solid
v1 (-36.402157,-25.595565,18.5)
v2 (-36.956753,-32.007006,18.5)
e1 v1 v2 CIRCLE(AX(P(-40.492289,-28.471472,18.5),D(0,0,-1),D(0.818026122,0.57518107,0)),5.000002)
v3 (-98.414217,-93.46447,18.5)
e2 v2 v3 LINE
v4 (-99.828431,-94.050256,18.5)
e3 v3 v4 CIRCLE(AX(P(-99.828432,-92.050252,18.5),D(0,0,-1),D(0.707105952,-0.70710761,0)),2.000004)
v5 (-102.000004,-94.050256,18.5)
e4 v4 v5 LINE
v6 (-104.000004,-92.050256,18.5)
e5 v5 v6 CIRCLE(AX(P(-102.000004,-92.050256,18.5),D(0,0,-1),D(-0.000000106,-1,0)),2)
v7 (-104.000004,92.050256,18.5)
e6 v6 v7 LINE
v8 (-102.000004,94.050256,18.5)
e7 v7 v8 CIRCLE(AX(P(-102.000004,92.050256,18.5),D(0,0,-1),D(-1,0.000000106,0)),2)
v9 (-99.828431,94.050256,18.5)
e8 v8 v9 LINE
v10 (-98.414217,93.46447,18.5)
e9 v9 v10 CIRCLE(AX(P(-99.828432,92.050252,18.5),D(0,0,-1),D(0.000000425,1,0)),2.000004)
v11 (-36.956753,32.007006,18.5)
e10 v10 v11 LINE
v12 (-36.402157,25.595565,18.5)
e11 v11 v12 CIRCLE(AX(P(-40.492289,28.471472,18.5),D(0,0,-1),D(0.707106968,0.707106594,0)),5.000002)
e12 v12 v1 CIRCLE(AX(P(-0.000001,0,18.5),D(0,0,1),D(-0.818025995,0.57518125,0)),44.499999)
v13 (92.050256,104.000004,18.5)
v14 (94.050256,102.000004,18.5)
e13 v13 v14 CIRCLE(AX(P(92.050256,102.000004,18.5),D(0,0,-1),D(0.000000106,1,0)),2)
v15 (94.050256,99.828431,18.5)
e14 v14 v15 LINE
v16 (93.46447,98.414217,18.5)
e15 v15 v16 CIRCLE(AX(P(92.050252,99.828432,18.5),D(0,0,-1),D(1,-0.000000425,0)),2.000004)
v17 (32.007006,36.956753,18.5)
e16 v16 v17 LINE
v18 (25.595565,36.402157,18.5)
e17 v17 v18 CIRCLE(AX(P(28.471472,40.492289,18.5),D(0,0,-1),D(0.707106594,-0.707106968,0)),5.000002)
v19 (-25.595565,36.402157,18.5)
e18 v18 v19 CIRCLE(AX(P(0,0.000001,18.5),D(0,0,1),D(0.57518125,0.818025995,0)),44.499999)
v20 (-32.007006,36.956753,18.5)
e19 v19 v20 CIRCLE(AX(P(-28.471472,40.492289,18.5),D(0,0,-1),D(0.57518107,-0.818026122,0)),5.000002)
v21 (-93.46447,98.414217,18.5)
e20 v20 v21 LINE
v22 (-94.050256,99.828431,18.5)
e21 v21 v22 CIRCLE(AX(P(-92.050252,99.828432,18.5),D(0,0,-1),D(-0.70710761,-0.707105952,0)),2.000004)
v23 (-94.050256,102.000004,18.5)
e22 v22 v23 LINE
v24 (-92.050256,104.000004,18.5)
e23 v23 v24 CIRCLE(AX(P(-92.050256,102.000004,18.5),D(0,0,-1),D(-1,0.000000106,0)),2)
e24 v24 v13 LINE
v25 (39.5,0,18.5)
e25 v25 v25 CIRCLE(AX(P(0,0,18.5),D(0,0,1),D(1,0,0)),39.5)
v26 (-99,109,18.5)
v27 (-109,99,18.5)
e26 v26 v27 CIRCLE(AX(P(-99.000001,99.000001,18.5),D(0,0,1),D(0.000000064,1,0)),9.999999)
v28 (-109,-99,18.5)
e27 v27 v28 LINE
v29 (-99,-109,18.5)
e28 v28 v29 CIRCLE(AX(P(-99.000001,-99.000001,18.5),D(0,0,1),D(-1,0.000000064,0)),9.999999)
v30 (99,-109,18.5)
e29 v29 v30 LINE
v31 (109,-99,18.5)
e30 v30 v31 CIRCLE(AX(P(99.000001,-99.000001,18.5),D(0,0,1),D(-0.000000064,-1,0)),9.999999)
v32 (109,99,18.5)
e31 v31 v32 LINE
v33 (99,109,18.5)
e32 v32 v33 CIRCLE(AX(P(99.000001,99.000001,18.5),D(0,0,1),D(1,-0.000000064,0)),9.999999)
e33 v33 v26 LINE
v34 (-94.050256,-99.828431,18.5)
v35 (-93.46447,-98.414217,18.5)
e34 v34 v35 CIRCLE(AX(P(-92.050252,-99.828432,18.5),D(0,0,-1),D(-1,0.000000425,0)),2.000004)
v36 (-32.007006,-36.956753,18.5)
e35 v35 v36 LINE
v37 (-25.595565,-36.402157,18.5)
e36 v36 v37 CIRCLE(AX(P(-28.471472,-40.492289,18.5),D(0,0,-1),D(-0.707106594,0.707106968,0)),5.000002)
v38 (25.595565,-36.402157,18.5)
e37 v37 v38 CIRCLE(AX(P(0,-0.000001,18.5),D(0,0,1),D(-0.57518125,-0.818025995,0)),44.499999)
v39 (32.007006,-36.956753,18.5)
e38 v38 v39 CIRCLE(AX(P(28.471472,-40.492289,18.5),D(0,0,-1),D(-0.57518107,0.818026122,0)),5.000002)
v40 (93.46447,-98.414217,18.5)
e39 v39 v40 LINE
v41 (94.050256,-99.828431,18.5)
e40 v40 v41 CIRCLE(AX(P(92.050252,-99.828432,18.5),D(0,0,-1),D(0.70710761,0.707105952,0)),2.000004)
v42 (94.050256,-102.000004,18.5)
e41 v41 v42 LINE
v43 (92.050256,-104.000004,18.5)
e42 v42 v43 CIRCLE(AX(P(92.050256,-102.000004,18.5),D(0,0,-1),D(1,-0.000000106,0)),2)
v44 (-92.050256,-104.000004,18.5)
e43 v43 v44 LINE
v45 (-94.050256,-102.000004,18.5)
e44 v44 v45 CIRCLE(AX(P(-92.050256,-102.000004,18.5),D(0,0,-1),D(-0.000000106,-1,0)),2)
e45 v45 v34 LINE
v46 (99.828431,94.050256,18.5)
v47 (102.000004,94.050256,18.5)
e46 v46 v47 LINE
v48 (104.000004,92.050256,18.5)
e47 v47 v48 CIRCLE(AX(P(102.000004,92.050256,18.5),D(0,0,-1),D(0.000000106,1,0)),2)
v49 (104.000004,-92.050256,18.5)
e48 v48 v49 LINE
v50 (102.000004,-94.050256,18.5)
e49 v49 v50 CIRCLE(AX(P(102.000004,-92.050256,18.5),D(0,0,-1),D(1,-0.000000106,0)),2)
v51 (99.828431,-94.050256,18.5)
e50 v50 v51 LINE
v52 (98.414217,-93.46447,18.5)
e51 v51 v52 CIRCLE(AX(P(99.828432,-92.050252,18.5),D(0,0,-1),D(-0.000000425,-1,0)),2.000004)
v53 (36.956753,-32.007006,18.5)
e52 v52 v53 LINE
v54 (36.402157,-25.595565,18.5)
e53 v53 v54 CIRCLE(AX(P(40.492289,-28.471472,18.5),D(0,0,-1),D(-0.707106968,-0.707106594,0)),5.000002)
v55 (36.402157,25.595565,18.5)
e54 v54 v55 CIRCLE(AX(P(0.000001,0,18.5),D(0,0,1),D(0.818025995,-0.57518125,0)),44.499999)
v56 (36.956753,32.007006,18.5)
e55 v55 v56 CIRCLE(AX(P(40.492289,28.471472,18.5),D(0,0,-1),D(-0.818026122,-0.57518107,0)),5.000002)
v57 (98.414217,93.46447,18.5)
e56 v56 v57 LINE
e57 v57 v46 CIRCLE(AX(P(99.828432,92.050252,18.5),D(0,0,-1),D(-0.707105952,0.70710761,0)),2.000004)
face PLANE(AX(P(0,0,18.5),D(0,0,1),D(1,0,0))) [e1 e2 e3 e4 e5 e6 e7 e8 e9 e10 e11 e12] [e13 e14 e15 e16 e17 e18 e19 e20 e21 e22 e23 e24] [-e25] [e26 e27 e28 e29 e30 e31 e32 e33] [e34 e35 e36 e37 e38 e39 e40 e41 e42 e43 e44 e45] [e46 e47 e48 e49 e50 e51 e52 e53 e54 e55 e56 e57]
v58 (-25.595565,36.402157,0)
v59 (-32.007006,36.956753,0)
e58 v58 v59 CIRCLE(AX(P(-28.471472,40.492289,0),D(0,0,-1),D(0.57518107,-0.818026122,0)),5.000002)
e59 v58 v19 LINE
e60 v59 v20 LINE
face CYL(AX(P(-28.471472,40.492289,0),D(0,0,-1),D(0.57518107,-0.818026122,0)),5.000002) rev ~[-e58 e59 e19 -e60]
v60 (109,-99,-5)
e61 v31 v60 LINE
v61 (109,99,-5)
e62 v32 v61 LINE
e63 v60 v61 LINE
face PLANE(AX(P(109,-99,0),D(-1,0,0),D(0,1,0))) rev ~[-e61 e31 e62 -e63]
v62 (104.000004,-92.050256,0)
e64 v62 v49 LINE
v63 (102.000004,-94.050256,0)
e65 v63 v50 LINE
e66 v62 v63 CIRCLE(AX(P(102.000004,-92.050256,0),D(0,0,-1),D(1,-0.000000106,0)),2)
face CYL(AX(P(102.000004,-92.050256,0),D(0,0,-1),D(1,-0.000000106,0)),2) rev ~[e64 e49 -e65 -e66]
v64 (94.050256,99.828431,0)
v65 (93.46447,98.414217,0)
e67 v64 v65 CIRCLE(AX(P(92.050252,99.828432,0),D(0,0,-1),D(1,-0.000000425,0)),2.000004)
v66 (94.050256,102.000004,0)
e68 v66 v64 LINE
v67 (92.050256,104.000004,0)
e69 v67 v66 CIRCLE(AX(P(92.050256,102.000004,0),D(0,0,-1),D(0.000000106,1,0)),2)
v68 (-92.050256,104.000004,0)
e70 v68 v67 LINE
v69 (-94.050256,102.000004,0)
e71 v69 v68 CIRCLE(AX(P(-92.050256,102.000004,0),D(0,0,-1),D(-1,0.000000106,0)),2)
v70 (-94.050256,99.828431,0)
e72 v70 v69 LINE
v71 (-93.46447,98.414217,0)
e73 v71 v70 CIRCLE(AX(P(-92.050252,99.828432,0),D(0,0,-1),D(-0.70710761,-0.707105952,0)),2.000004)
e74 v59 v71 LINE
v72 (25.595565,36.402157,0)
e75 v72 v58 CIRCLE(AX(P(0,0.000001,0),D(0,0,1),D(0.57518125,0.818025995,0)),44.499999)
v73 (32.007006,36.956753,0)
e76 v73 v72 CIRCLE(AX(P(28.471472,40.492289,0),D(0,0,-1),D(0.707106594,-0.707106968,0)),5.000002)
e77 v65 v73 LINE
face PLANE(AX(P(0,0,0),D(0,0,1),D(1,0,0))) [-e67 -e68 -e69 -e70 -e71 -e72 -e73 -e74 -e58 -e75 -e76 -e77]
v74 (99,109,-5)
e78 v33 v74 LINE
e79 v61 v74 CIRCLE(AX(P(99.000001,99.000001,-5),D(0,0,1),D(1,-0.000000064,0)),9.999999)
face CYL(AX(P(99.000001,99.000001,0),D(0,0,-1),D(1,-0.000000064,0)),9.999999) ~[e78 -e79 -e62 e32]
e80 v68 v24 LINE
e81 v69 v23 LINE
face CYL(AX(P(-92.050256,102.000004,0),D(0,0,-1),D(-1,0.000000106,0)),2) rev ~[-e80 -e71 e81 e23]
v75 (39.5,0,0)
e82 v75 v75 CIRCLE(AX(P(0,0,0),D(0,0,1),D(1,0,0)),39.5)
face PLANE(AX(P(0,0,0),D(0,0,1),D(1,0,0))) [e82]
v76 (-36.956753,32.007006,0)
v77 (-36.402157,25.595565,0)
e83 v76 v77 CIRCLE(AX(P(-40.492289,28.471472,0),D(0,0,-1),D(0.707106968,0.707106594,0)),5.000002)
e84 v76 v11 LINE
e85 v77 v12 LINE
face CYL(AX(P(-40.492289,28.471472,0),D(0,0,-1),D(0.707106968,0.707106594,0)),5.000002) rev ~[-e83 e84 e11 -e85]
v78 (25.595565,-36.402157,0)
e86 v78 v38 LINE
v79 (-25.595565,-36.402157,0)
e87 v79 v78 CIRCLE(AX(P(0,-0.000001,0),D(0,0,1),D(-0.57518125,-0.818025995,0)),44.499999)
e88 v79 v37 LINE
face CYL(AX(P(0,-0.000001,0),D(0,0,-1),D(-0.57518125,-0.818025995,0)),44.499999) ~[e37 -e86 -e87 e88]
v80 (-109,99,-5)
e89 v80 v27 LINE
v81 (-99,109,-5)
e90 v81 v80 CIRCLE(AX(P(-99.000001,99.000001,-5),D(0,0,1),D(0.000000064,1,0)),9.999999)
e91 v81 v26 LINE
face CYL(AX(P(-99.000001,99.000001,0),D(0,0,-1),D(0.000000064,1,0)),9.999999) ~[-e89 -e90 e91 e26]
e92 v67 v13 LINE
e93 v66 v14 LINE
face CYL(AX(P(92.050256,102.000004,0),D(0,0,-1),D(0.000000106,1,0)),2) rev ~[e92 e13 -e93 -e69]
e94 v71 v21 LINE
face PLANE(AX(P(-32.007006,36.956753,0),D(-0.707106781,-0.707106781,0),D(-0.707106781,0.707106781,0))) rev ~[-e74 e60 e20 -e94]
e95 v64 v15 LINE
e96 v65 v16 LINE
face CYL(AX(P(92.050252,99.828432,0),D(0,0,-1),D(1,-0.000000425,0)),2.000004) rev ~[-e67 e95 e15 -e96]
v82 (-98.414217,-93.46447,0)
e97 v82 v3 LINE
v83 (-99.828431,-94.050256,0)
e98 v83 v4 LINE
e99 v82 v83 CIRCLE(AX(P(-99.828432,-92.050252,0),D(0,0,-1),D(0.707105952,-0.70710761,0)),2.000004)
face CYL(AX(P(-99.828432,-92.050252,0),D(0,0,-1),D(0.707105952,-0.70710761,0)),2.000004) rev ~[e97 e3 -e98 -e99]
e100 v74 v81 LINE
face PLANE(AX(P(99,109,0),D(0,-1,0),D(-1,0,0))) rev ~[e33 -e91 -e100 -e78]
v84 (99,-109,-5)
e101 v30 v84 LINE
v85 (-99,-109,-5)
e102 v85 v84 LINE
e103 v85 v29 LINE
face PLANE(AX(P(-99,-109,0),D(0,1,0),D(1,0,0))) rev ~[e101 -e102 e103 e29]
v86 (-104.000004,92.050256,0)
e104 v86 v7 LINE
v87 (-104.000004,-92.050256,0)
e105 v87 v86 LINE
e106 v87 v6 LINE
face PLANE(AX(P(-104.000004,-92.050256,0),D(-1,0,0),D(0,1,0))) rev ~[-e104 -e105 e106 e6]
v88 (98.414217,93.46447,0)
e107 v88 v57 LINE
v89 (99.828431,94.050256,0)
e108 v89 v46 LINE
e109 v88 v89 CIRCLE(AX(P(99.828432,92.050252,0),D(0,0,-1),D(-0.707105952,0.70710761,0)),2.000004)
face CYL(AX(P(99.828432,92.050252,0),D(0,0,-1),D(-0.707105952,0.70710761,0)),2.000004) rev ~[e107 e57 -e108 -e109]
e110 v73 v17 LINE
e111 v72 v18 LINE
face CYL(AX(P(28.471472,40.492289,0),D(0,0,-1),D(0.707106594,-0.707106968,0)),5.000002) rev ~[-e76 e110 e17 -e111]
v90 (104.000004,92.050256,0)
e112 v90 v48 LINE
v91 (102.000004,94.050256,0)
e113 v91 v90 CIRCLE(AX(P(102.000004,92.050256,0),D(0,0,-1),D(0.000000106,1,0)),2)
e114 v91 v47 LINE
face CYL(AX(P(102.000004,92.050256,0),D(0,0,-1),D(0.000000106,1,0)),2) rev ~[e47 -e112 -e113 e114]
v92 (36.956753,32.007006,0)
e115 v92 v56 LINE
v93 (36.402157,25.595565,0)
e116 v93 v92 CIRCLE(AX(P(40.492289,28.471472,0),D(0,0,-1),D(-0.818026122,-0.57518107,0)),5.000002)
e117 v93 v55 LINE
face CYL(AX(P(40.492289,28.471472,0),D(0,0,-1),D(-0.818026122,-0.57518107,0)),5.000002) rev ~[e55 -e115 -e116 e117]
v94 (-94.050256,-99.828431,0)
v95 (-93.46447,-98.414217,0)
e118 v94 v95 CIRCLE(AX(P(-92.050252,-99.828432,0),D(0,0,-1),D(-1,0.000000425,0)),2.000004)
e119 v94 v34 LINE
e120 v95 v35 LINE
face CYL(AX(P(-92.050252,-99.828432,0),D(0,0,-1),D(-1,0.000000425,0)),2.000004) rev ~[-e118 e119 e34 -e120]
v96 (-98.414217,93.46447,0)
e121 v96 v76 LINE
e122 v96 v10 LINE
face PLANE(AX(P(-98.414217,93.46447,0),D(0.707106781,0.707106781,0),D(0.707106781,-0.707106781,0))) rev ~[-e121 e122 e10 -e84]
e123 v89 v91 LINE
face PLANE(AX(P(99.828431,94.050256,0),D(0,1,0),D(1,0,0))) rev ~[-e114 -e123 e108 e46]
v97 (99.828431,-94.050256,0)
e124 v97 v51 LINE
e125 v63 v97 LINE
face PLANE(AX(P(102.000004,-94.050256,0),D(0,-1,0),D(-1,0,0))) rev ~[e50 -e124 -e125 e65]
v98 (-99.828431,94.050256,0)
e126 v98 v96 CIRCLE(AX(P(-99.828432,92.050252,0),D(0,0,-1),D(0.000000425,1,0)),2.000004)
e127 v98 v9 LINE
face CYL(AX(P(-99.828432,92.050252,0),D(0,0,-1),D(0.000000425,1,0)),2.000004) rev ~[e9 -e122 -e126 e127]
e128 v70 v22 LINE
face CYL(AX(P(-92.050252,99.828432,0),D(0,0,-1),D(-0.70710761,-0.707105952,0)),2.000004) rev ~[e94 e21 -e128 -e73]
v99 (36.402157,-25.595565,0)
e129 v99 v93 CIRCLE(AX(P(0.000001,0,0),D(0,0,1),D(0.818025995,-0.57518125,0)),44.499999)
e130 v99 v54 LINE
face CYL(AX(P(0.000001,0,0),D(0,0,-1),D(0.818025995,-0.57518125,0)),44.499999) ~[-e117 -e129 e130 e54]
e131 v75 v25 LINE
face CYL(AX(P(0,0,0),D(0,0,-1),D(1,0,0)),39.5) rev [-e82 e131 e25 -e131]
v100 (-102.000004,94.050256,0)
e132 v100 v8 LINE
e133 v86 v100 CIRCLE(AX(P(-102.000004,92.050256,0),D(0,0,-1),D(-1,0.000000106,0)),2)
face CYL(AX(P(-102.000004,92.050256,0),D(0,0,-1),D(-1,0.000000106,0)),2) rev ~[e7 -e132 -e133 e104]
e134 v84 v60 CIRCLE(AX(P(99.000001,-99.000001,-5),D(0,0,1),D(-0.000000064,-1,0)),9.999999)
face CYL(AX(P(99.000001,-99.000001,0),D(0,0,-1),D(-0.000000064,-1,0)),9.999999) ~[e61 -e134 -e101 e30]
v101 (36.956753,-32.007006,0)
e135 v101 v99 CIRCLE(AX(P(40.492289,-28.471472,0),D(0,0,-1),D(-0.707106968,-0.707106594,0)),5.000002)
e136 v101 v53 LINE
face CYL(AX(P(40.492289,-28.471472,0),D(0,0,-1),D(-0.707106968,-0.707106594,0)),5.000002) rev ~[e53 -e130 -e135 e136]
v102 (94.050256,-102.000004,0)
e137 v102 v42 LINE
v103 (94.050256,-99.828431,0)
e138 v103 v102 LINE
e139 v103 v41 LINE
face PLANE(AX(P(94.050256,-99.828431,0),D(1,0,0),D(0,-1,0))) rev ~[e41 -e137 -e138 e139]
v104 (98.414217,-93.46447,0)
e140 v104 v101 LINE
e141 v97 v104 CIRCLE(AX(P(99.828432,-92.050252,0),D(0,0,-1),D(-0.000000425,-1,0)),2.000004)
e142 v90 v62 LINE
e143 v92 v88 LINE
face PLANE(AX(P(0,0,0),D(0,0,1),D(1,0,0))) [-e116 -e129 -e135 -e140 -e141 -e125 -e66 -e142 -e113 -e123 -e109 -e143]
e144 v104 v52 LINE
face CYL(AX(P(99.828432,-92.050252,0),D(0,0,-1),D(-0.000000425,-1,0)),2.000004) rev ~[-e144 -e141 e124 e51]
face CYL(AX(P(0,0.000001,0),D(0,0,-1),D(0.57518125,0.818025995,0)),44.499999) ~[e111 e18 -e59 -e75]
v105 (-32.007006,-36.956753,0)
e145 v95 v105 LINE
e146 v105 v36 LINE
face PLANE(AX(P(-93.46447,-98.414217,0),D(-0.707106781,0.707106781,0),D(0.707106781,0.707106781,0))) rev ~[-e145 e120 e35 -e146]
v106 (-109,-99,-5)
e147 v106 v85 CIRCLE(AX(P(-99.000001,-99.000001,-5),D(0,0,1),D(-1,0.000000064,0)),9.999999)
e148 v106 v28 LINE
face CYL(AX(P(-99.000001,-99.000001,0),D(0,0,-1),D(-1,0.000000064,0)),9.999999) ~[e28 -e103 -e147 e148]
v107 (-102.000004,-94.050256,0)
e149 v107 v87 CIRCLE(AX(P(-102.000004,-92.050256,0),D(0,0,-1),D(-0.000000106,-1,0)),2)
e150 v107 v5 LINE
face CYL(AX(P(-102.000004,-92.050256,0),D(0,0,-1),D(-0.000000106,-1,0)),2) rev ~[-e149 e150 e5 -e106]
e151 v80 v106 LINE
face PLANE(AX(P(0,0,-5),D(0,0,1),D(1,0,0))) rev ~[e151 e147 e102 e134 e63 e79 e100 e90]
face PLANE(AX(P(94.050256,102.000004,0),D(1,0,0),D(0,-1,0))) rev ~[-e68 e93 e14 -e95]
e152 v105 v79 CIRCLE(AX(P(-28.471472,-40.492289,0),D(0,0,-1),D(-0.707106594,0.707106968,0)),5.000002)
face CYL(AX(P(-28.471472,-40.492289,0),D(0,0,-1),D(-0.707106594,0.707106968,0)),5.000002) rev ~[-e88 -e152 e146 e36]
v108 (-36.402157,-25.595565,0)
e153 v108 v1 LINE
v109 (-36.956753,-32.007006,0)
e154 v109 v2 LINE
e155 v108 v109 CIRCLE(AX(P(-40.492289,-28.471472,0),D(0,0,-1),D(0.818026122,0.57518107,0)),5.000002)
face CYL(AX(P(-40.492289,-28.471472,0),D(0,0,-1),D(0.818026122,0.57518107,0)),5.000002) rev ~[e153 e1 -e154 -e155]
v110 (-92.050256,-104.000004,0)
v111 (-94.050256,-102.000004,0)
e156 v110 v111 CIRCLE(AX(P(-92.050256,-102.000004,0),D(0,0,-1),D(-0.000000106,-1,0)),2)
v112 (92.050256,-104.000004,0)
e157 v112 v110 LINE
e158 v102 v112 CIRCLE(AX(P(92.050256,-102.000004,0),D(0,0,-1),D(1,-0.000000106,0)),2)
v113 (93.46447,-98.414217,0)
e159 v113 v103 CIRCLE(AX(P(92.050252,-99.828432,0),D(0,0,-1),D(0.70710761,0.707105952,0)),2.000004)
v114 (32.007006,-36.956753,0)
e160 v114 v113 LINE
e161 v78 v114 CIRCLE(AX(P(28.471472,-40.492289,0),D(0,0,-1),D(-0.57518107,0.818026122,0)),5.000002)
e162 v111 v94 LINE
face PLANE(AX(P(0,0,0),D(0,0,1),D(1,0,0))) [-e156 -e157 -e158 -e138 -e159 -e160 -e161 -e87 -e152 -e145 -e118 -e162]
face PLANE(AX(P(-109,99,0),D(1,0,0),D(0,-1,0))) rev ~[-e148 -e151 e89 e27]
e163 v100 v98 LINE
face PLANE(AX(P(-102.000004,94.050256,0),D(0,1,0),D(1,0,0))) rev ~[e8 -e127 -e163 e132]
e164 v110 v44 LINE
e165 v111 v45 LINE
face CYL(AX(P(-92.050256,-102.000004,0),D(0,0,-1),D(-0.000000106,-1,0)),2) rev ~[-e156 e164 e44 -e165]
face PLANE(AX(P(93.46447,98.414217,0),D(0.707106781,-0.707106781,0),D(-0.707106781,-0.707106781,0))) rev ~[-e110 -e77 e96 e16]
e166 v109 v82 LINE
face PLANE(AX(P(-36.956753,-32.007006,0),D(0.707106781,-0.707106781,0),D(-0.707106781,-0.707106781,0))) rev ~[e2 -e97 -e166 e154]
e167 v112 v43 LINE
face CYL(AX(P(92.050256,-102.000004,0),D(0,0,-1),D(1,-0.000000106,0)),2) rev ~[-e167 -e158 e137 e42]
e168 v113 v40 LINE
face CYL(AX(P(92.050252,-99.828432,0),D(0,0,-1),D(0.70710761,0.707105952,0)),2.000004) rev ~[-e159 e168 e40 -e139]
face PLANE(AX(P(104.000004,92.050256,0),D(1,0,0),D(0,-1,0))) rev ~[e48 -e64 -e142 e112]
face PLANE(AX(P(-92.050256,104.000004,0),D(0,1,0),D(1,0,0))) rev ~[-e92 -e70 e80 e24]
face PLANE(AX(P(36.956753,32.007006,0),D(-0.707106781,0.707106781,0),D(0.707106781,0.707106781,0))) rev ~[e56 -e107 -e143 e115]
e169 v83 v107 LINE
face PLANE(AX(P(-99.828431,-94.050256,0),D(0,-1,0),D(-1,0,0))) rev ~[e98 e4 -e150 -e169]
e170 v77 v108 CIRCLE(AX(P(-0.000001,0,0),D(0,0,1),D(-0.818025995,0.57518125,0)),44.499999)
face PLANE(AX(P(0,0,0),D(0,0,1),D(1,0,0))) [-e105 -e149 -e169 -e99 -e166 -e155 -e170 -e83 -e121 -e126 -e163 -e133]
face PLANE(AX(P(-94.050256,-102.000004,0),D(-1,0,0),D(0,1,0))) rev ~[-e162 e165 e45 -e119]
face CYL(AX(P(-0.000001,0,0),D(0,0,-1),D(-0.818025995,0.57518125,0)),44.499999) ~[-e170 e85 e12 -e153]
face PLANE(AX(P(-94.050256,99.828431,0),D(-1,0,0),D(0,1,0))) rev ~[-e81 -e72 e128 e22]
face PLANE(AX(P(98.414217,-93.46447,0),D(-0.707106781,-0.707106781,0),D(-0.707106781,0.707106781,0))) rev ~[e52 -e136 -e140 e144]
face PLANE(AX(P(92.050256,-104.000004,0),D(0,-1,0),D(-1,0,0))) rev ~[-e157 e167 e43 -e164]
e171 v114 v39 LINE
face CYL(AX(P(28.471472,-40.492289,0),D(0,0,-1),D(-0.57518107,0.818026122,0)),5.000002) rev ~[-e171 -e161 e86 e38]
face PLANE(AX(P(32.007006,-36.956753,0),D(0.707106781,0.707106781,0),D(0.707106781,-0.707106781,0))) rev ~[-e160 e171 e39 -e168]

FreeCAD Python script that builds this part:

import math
import FreeCAD as App
import Part
import Sketcher

V = App.Vector
Q = App.Units.Quantity

doc = App.newDocument("Part")
body = doc.addObject("PartDesign::Body", "Body")

sketch1 = body.newObject("Sketcher::SketchObject", "Sketch")
sketch1.AttachmentSupport = (doc.getObject("XY_Plane"), [""])
sketch1.MapMode = "FlatFace"
sketch1.addGeometry(Part.LineSegment(V(99, 109, 0), V(-99, 109, 0)), False)
sketch1.addGeometry(Part.ArcOfCircle(Part.Circle(V(-99, 99, 0), V(0, 0, 1), 10), math.radians(90), math.radians(180)), False)
sketch1.addGeometry(Part.LineSegment(V(-109, 99, 0), V(-109, -99, 0)), False)
sketch1.addGeometry(Part.ArcOfCircle(Part.Circle(V(-99, -99, 0), V(0, 0, 1), 10), math.radians(180), math.radians(270)), False)
sketch1.addGeometry(Part.LineSegment(V(-99, -109, 0), V(99, -109, 0)), False)
sketch1.addGeometry(Part.ArcOfCircle(Part.Circle(V(99, -99, 0), V(0, 0, 1), 10), math.radians(-90), math.radians(0)), False)
sketch1.addGeometry(Part.LineSegment(V(109, -99, 0), V(109, 99, 0)), False)
sketch1.addGeometry(Part.ArcOfCircle(Part.Circle(V(99, 99, 0), V(0, 0, 1), 10), math.radians(0), math.radians(90)), False)
sketch1.addConstraint(Sketcher.Constraint("Tangent", 0, 2, 1, 1))
sketch1.addConstraint(Sketcher.Constraint("Tangent", 1, 2, 2, 1))
sketch1.addConstraint(Sketcher.Constraint("Tangent", 2, 2, 3, 1))
sketch1.addConstraint(Sketcher.Constraint("Tangent", 3, 2, 4, 1))
sketch1.addConstraint(Sketcher.Constraint("Tangent", 4, 2, 5, 1))
sketch1.addConstraint(Sketcher.Constraint("Tangent", 5, 2, 6, 1))
sketch1.addConstraint(Sketcher.Constraint("Tangent", 6, 2, 7, 1))
sketch1.addConstraint(Sketcher.Constraint("Tangent", 7, 2, 0, 1))
sketch1.addConstraint(Sketcher.Constraint("Horizontal", 0))
sketch1.addConstraint(Sketcher.Constraint("Vertical", 2))
sketch1.addConstraint(Sketcher.Constraint("Horizontal", 4))
sketch1.addConstraint(Sketcher.Constraint("Vertical", 6))
sketch1.addConstraint(Sketcher.Constraint("Equal", 1, 3))
sketch1.addConstraint(Sketcher.Constraint("Equal", 3, 5))
sketch1.addConstraint(Sketcher.Constraint("Equal", 5, 7))
sketch1.addConstraint(Sketcher.Constraint("Symmetric", 1, 3, 5, 3, -1, 1))
sketch1.addConstraint(Sketcher.Constraint("Equal", 4, 2))
sketch1.addConstraint(Sketcher.Constraint("Radius", 1, Q("9.999999 mm")))
sketch1.addConstraint(Sketcher.Constraint("DistanceX", 0, 2, 0, 1, Q("198 mm")))
pad1 = body.newObject("PartDesign::Pad", "Pad")
pad1.Profile = sketch1
pad1.Length = 5
pad1.Reversed = True

sketch2 = body.newObject("Sketcher::SketchObject", "Sketch001")
sketch2.AttachmentSupport = (doc.getObject("XY_Plane"), [""])
sketch2.MapMode = "FlatFace"
sketch2.addGeometry(Part.LineSegment(V(99, 109, 0), V(-99, 109, 0)), False)
sketch2.addGeometry(Part.ArcOfCircle(Part.Circle(V(-99, 99, 0), V(0, 0, 1), 10), math.radians(90), math.radians(180)), False)
sketch2.addGeometry(Part.LineSegment(V(-109, 99, 0), V(-109, -99, 0)), False)
sketch2.addGeometry(Part.ArcOfCircle(Part.Circle(V(-99, -99, 0), V(0, 0, 1), 10), math.radians(180), math.radians(270)), False)
sketch2.addGeometry(Part.LineSegment(V(-99, -109, 0), V(99, -109, 0)), False)
sketch2.addGeometry(Part.ArcOfCircle(Part.Circle(V(99, -99, 0), V(0, 0, 1), 10), math.radians(-90), math.radians(0)), False)
sketch2.addGeometry(Part.LineSegment(V(109, -99, 0), V(109, 99, 0)), False)
sketch2.addGeometry(Part.ArcOfCircle(Part.Circle(V(99, 99, 0), V(0, 0, 1), 10), math.radians(0), math.radians(90)), False)
sketch2.addGeometry(Part.LineSegment(V(92.1, -104, 0), V(-92.1, -104, 0)), False)
sketch2.addGeometry(Part.ArcOfCircle(Part.Circle(V(-92.1, -102, 0), V(0, 0, 1), 2), math.radians(-180), math.radians(-90)), False)
sketch2.addGeometry(Part.LineSegment(V(-94.1, -102, 0), V(-94.1, -99.8, 0)), False)
sketch2.addGeometry(Part.ArcOfCircle(Part.Circle(V(-92.1, -99.8, 0), V(0, 0, 1), 2), math.radians(135), math.radians(180)), False)
sketch2.addGeometry(Part.LineSegment(V(-93.5, -98.4, 0), V(-32, -37, 0)), False)
sketch2.addGeometry(Part.ArcOfCircle(Part.Circle(V(-28.5, -40.5, 0), V(0, 0, 1), 5), math.radians(55), math.radians(135)), False)
sketch2.addGeometry(Part.ArcOfCircle(Part.Circle(V(0, 0, 0), V(0, 0, 1), 44.5), math.radians(-125), math.radians(-55)), False)
sketch2.addGeometry(Part.ArcOfCircle(Part.Circle(V(28.5, -40.5, 0), V(0, 0, 1), 5), math.radians(45), math.radians(125)), False)
sketch2.addGeometry(Part.LineSegment(V(32, -37, 0), V(93.5, -98.4, 0)), False)
sketch2.addGeometry(Part.ArcOfCircle(Part.Circle(V(92.1, -99.8, 0), V(0, 0, 1), 2), math.radians(0), math.radians(45)), False)
sketch2.addGeometry(Part.LineSegment(V(94.1, -99.8, 0), V(94.1, -102, 0)), False)
sketch2.addGeometry(Part.ArcOfCircle(Part.Circle(V(92.1, -102, 0), V(0, 0, 1), 2), math.radians(-90), math.radians(0)), False)
sketch2.addGeometry(Part.LineSegment(V(-104, -92.1, 0), V(-104, 92.1, 0)), False)
sketch2.addGeometry(Part.ArcOfCircle(Part.Circle(V(-102, 92.1, 0), V(0, 0, 1), 2), math.radians(90), math.radians(180)), False)
sketch2.addGeometry(Part.LineSegment(V(-102, 94.1, 0), V(-99.8, 94.1, 0)), False)
sketch2.addGeometry(Part.ArcOfCircle(Part.Circle(V(-99.8, 92.1, 0), V(0, 0, 1), 2), math.radians(45), math.radians(90)), False)
sketch2.addGeometry(Part.LineSegment(V(-98.4, 93.5, 0), V(-37, 32, 0)), False)
sketch2.addGeometry(Part.ArcOfCircle(Part.Circle(V(-40.5, 28.5, 0), V(0, 0, 1), 5), math.radians(-35), math.radians(45)), False)
sketch2.addGeometry(Part.ArcOfCircle(Part.Circle(V(0, 0, 0), V(0, 0, 1), 44.5), math.radians(145), math.radians(215)), False)
sketch2.addGeometry(Part.ArcOfCircle(Part.Circle(V(-40.5, -28.5, 0), V(0, 0, 1), 5), math.radians(-45), math.radians(35)), False)
sketch2.addGeometry(Part.LineSegment(V(-37, -32, 0), V(-98.4, -93.5, 0)), False)
sketch2.addGeometry(Part.ArcOfCircle(Part.Circle(V(-99.8, -92.1, 0), V(0, 0, 1), 2), math.radians(-90), math.radians(-45)), False)
sketch2.addGeometry(Part.LineSegment(V(-99.8, -94.1, 0), V(-102, -94.1, 0)), False)
sketch2.addGeometry(Part.ArcOfCircle(Part.Circle(V(-102, -92.1, 0), V(0, 0, 1), 2), math.radians(-180), math.radians(-90)), False)
sketch2.addGeometry(Part.Circle(V(0, 0, 0), V(0, 0, 1), 39.5), False)
sketch2.addGeometry(Part.LineSegment(V(99.8, 94.1, 0), V(102, 94.1, 0)), False)
sketch2.addGeometry(Part.ArcOfCircle(Part.Circle(V(102, 92.1, 0), V(0, 0, 1), 2), math.radians(0), math.radians(90)), False)
sketch2.addGeometry(Part.LineSegment(V(104, 92.1, 0), V(104, -92.1, 0)), False)
sketch2.addGeometry(Part.ArcOfCircle(Part.Circle(V(102, -92.1, 0), V(0, 0, 1), 2), math.radians(-90), math.radians(0)), False)
sketch2.addGeometry(Part.LineSegment(V(102, -94.1, 0), V(99.8, -94.1, 0)), False)
sketch2.addGeometry(Part.ArcOfCircle(Part.Circle(V(99.8, -92.1, 0), V(0, 0, 1), 2), math.radians(-135), math.radians(-90)), False)
sketch2.addGeometry(Part.LineSegment(V(98.4, -93.5, 0), V(37, -32, 0)), False)
sketch2.addGeometry(Part.ArcOfCircle(Part.Circle(V(40.5, -28.5, 0), V(0, 0, 1), 5), math.radians(145), math.radians(225)), False)
sketch2.addGeometry(Part.ArcOfCircle(Part.Circle(V(0, 0, 0), V(0, 0, 1), 44.5), math.radians(-35), math.radians(35)), False)
sketch2.addGeometry(Part.ArcOfCircle(Part.Circle(V(40.5, 28.5, 0), V(0, 0, 1), 5), math.radians(135), math.radians(215)), False)
sketch2.addGeometry(Part.LineSegment(V(37, 32, 0), V(98.4, 93.5, 0)), False)
sketch2.addGeometry(Part.ArcOfCircle(Part.Circle(V(99.8, 92.1, 0), V(0, 0, 1), 2), math.radians(90), math.radians(135)), False)
sketch2.addGeometry(Part.LineSegment(V(-94.1, 99.8, 0), V(-94.1, 102, 0)), False)
sketch2.addGeometry(Part.ArcOfCircle(Part.Circle(V(-92.1, 102, 0), V(0, 0, 1), 2), math.radians(90), math.radians(180)), False)
sketch2.addGeometry(Part.LineSegment(V(-92.1, 104, 0), V(92.1, 104, 0)), False)
sketch2.addGeometry(Part.ArcOfCircle(Part.Circle(V(92.1, 102, 0), V(0, 0, 1), 2), math.radians(0), math.radians(90)), False)
sketch2.addGeometry(Part.LineSegment(V(94.1, 102, 0), V(94.1, 99.8, 0)), False)
sketch2.addGeometry(Part.ArcOfCircle(Part.Circle(V(92.1, 99.8, 0), V(0, 0, 1), 2), math.radians(-45), math.radians(0)), False)
sketch2.addGeometry(Part.LineSegment(V(93.5, 98.4, 0), V(32, 37, 0)), False)
sketch2.addGeometry(Part.ArcOfCircle(Part.Circle(V(28.5, 40.5, 0), V(0, 0, 1), 5), math.radians(-125), math.radians(-45)), False)
sketch2.addGeometry(Part.ArcOfCircle(Part.Circle(V(0, 0, 0), V(0, 0, 1), 44.5), math.radians(55), math.radians(125)), False)
sketch2.addGeometry(Part.ArcOfCircle(Part.Circle(V(-28.5, 40.5, 0), V(0, 0, 1), 5), math.radians(-135), math.radians(-55)), False)
sketch2.addGeometry(Part.LineSegment(V(-32, 37, 0), V(-93.5, 98.4, 0)), False)
sketch2.addGeometry(Part.ArcOfCircle(Part.Circle(V(-92.1, 99.8, 0), V(0, 0, 1), 2), math.radians(-180), math.radians(-135)), False)
sketch2.addConstraint(Sketcher.Constraint("Tangent", 0, 2, 1, 1))
sketch2.addConstraint(Sketcher.Constraint("Tangent", 1, 2, 2, 1))
sketch2.addConstraint(Sketcher.Constraint("Tangent", 2, 2, 3, 1))
sketch2.addConstraint(Sketcher.Constraint("Tangent", 3, 2, 4, 1))
sketch2.addConstraint(Sketcher.Constraint("Tangent", 4, 2, 5, 1))
sketch2.addConstraint(Sketcher.Constraint("Tangent", 5, 2, 6, 1))
sketch2.addConstraint(Sketcher.Constraint("Tangent", 6, 2, 7, 1))
sketch2.addConstraint(Sketcher.Constraint("Tangent", 7, 2, 0, 1))
sketch2.addConstraint(Sketcher.Constraint("Tangent", 8, 2, 9, 2))
sketch2.addConstraint(Sketcher.Constraint("Tangent", 9, 1, 10, 1))
sketch2.addConstraint(Sketcher.Constraint("Tangent", 10, 2, 11, 2))
sketch2.addConstraint(Sketcher.Constraint("Tangent", 11, 1, 12, 1))
sketch2.addConstraint(Sketcher.Constraint("Tangent", 12, 2, 13, 2))
sketch2.addConstraint(Sketcher.Constraint("Tangent", 13, 1, 14, 1))
sketch2.addConstraint(Sketcher.Constraint("Tangent", 14, 2, 15, 2))
sketch2.addConstraint(Sketcher.Constraint("Tangent", 15, 1, 16, 1))
sketch2.addConstraint(Sketcher.Constraint("Tangent", 16, 2, 17, 2))
sketch2.addConstraint(Sketcher.Constraint("Tangent", 17, 1, 18, 1))
sketch2.addConstraint(Sketcher.Constraint("Tangent", 18, 2, 19, 2))
sketch2.addConstraint(Sketcher.Constraint("Tangent", 19, 1, 8, 1))
sketch2.addConstraint(Sketcher.Constraint("Tangent", 20, 2, 21, 2))
sketch2.addConstraint(Sketcher.Constraint("Tangent", 21, 1, 22, 1))
sketch2.addConstraint(Sketcher.Constraint("Tangent", 22, 2, 23, 2))
sketch2.addConstraint(Sketcher.Constraint("Tangent", 23, 1, 24, 1))
sketch2.addConstraint(Sketcher.Constraint("Tangent", 24, 2, 25, 2))
sketch2.addConstraint(Sketcher.Constraint("Tangent", 25, 1, 26, 1))
sketch2.addConstraint(Sketcher.Constraint("Tangent", 26, 2, 27, 2))
sketch2.addConstraint(Sketcher.Constraint("Tangent", 27, 1, 28, 1))
sketch2.addConstraint(Sketcher.Constraint("Tangent", 28, 2, 29, 2))
sketch2.addConstraint(Sketcher.Constraint("Tangent", 29, 1, 30, 1))
sketch2.addConstraint(Sketcher.Constraint("Tangent", 30, 2, 31, 2))
sketch2.addConstraint(Sketcher.Constraint("Tangent", 31, 1, 20, 1))
sketch2.addConstraint(Sketcher.Constraint("Tangent", 33, 2, 34, 2))
sketch2.addConstraint(Sketcher.Constraint("Tangent", 34, 1, 35, 1))
sketch2.addConstraint(Sketcher.Constraint("Tangent", 35, 2, 36, 2))
sketch2.addConstraint(Sketcher.Constraint("Tangent", 36, 1, 37, 1))
sketch2.addConstraint(Sketcher.Constraint("Tangent", 37, 2, 38, 2))
sketch2.addConstraint(Sketcher.Constraint("Tangent", 38, 1, 39, 1))
sketch2.addConstraint(Sketcher.Constraint("Tangent", 39, 2, 40, 2))
sketch2.addConstraint(Sketcher.Constraint("Tangent", 40, 1, 41, 1))
sketch2.addConstraint(Sketcher.Constraint("Tangent", 41, 2, 42, 2))
sketch2.addConstraint(Sketcher.Constraint("Tangent", 42, 1, 43, 1))
sketch2.addConstraint(Sketcher.Constraint("Tangent", 43, 2, 44, 2))
sketch2.addConstraint(Sketcher.Constraint("Tangent", 44, 1, 33, 1))
sketch2.addConstraint(Sketcher.Constraint("Tangent", 45, 2, 46, 2))
sketch2.addConstraint(Sketcher.Constraint("Tangent", 46, 1, 47, 1))
sketch2.addConstraint(Sketcher.Constraint("Tangent", 47, 2, 48, 2))
sketch2.addConstraint(Sketcher.Constraint("Tangent", 48, 1, 49, 1))
sketch2.addConstraint(Sketcher.Constraint("Tangent", 49, 2, 50, 2))
sketch2.addConstraint(Sketcher.Constraint("Tangent", 50, 1, 51, 1))
sketch2.addConstraint(Sketcher.Constraint("Tangent", 51, 2, 52, 2))
sketch2.addConstraint(Sketcher.Constraint("Tangent", 52, 1, 53, 1))
sketch2.addConstraint(Sketcher.Constraint("Tangent", 53, 2, 54, 2))
sketch2.addConstraint(Sketcher.Constraint("Tangent", 54, 1, 55, 1))
sketch2.addConstraint(Sketcher.Constraint("Tangent", 55, 2, 56, 2))
sketch2.addConstraint(Sketcher.Constraint("Tangent", 56, 1, 45, 1))
sketch2.addConstraint(Sketcher.Constraint("Horizontal", 0))
sketch2.addConstraint(Sketcher.Constraint("Vertical", 2))
sketch2.addConstraint(Sketcher.Constraint("Horizontal", 4))
sketch2.addConstraint(Sketcher.Constraint("Vertical", 6))
sketch2.addConstraint(Sketcher.Constraint("Horizontal", 8))
sketch2.addConstraint(Sketcher.Constraint("Vertical", 10))
sketch2.addConstraint(Sketcher.Constraint("Vertical", 18))
sketch2.addConstraint(Sketcher.Constraint("Vertical", 20))
sketch2.addConstraint(Sketcher.Constraint("Horizontal", 22))
sketch2.addConstraint(Sketcher.Constraint("Horizontal", 30))
sketch2.addConstraint(Sketcher.Constraint("Horizontal", 33))
sketch2.addConstraint(Sketcher.Constraint("Vertical", 35))
sketch2.addConstraint(Sketcher.Constraint("Horizontal", 37))
sketch2.addConstraint(Sketcher.Constraint("Vertical", 45))
sketch2.addConstraint(Sketcher.Constraint("Horizontal", 47))
sketch2.addConstraint(Sketcher.Constraint("Vertical", 49))
sketch2.addConstraint(Sketcher.Constraint("Coincident", 14, 3, -1, 1))
sketch2.addConstraint(Sketcher.Constraint("Coincident", 26, 3, -1, 1))
sketch2.addConstraint(Sketcher.Constraint("Coincident", 32, 3, -1, 1))
sketch2.addConstraint(Sketcher.Constraint("Coincident", 41, 3, -1, 1))
sketch2.addConstraint(Sketcher.Constraint("Coincident", 53, 3, -1, 1))
sketch2.addConstraint(Sketcher.Constraint("Equal", 1, 3))
sketch2.addConstraint(Sketcher.Constraint("Equal", 3, 5))
sketch2.addConstraint(Sketcher.Constraint("Equal", 5, 7))
sketch2.addConstraint(Sketcher.Constraint("Equal", 13, 15))
sketch2.addConstraint(Sketcher.Constraint("Equal", 11, 17))
sketch2.addConstraint(Sketcher.Constraint("Equal", 9, 19))
sketch2.addConstraint(Sketcher.Constraint("Equal", 19, 21))
sketch2.addConstraint(Sketcher.Constraint("Equal", 17, 23))
sketch2.addConstraint(Sketcher.Constraint("Equal", 15, 25))
sketch2.addConstraint(Sketcher.Constraint("Equal", 14, 26))
sketch2.addConstraint(Sketcher.Constraint("Equal", 25, 27))
sketch2.addConstraint(Sketcher.Constraint("Equal", 23, 29))
sketch2.addConstraint(Sketcher.Constraint("Equal", 21, 31))
sketch2.addConstraint(Sketcher.Constraint("Equal", 31, 34))
sketch2.addConstraint(Sketcher.Constraint("Equal", 34, 36))
sketch2.addConstraint(Sketcher.Constraint("Equal", 29, 38))
sketch2.addConstraint(Sketcher.Constraint("Equal", 27, 40))
sketch2.addConstraint(Sketcher.Constraint("Equal", 26, 41))
sketch2.addConstraint(Sketcher.Constraint("Equal", 40, 42))
sketch2.addConstraint(Sketcher.Constraint("Equal", 38, 44))
sketch2.addConstraint(Sketcher.Constraint("Equal", 36, 46))
sketch2.addConstraint(Sketcher.Constraint("Equal", 46, 48))
sketch2.addConstraint(Sketcher.Constraint("Equal", 44, 50))
sketch2.addConstraint(Sketcher.Constraint("Equal", 42, 52))
sketch2.addConstraint(Sketcher.Constraint("Equal", 41, 53))
sketch2.addConstraint(Sketcher.Constraint("Equal", 52, 54))
sketch2.addConstraint(Sketcher.Constraint("Equal", 50, 56))
sketch2.addConstraint(Sketcher.Constraint("Symmetric", 1, 3, 5, 3, -1, 1))
sketch2.addConstraint(Sketcher.Constraint("Symmetric", 31, 3, 34, 3, -1, 1))
sketch2.addConstraint(Sketcher.Constraint("Symmetric", 23, 3, 38, 3, -1, 1))
sketch2.addConstraint(Sketcher.Constraint("Symmetric", 19, 3, 46, 3, -1, 1))
sketch2.addConstraint(Sketcher.Constraint("Symmetric", 11, 3, 50, 3, -1, 1))
sketch2.addConstraint(Sketcher.Constraint("Symmetric", 27, 1, 42, 1, -1, 1))
sketch2.addConstraint(Sketcher.Constraint("Symmetric", 15, 1, 54, 1, -1, 1))
sketch2.addConstraint(Sketcher.Constraint("Symmetric", 11, 3, 17, 3, -2))
sketch2.addConstraint(Sketcher.Constraint("Symmetric", 29, 3, 38, 3, -2))
sketch2.addConstraint(Sketcher.Constraint("Perpendicular", 12, 16))
sketch2.addConstraint(Sketcher.Constraint("Parallel", 16, 24))
sketch2.addConstraint(Sketcher.Constraint("Perpendicular", 24, 28))
sketch2.addConstraint(Sketcher.Constraint("Perpendicular", 28, 39))
sketch2.addConstraint(Sketcher.Constraint("Parallel", 43, 51))
sketch2.addConstraint(Sketcher.Constraint("Horizontal", 13, 3, 15, 3))
sketch2.addConstraint(Sketcher.Constraint("Equal", 4, 2))
sketch2.addConstraint(Sketcher.Constraint("Equal", 37, 10))
sketch2.addConstraint(Sketcher.Constraint("Equal", 47, 20))
sketch2.addConstraint(Sketcher.Constraint("Equal", 16, 24))
sketch2.addConstraint(Sketcher.Constraint("Diameter", 32, Q("79 mm")))
sketch2.addConstraint(Sketcher.Constraint("Radius", 1, Q("9.999999 mm")))
sketch2.addConstraint(Sketcher.Constraint("Radius", 9, Q("2 mm")))
sketch2.addConstraint(Sketcher.Constraint("Radius", 14, Q("44.499999 mm")))
sketch2.addConstraint(Sketcher.Constraint("DistanceX", 0, 2, 0, 1, Q("198 mm")))
sketch2.addConstraint(Sketcher.Constraint("Radius", 11, Q("2.000004 mm")))
sketch2.addConstraint(Sketcher.Constraint("Radius", 13, Q("5.000002 mm")))
sketch2.addConstraint(Sketcher.Constraint("DistanceX", 8, 2, 8, 1, Q("184.100512 mm")))
sketch2.addConstraint(Sketcher.Constraint("Distance", 12, Q("86.913979 mm")))
sketch2.addConstraint(Sketcher.Constraint("DistanceX", 22, 1, 22, 2, Q("2.171573 mm")))
pad2 = body.newObject("PartDesign::Pad", "Pad001")
pad2.Profile = sketch2
pad2.Length = 18.5

doc.recompute()
